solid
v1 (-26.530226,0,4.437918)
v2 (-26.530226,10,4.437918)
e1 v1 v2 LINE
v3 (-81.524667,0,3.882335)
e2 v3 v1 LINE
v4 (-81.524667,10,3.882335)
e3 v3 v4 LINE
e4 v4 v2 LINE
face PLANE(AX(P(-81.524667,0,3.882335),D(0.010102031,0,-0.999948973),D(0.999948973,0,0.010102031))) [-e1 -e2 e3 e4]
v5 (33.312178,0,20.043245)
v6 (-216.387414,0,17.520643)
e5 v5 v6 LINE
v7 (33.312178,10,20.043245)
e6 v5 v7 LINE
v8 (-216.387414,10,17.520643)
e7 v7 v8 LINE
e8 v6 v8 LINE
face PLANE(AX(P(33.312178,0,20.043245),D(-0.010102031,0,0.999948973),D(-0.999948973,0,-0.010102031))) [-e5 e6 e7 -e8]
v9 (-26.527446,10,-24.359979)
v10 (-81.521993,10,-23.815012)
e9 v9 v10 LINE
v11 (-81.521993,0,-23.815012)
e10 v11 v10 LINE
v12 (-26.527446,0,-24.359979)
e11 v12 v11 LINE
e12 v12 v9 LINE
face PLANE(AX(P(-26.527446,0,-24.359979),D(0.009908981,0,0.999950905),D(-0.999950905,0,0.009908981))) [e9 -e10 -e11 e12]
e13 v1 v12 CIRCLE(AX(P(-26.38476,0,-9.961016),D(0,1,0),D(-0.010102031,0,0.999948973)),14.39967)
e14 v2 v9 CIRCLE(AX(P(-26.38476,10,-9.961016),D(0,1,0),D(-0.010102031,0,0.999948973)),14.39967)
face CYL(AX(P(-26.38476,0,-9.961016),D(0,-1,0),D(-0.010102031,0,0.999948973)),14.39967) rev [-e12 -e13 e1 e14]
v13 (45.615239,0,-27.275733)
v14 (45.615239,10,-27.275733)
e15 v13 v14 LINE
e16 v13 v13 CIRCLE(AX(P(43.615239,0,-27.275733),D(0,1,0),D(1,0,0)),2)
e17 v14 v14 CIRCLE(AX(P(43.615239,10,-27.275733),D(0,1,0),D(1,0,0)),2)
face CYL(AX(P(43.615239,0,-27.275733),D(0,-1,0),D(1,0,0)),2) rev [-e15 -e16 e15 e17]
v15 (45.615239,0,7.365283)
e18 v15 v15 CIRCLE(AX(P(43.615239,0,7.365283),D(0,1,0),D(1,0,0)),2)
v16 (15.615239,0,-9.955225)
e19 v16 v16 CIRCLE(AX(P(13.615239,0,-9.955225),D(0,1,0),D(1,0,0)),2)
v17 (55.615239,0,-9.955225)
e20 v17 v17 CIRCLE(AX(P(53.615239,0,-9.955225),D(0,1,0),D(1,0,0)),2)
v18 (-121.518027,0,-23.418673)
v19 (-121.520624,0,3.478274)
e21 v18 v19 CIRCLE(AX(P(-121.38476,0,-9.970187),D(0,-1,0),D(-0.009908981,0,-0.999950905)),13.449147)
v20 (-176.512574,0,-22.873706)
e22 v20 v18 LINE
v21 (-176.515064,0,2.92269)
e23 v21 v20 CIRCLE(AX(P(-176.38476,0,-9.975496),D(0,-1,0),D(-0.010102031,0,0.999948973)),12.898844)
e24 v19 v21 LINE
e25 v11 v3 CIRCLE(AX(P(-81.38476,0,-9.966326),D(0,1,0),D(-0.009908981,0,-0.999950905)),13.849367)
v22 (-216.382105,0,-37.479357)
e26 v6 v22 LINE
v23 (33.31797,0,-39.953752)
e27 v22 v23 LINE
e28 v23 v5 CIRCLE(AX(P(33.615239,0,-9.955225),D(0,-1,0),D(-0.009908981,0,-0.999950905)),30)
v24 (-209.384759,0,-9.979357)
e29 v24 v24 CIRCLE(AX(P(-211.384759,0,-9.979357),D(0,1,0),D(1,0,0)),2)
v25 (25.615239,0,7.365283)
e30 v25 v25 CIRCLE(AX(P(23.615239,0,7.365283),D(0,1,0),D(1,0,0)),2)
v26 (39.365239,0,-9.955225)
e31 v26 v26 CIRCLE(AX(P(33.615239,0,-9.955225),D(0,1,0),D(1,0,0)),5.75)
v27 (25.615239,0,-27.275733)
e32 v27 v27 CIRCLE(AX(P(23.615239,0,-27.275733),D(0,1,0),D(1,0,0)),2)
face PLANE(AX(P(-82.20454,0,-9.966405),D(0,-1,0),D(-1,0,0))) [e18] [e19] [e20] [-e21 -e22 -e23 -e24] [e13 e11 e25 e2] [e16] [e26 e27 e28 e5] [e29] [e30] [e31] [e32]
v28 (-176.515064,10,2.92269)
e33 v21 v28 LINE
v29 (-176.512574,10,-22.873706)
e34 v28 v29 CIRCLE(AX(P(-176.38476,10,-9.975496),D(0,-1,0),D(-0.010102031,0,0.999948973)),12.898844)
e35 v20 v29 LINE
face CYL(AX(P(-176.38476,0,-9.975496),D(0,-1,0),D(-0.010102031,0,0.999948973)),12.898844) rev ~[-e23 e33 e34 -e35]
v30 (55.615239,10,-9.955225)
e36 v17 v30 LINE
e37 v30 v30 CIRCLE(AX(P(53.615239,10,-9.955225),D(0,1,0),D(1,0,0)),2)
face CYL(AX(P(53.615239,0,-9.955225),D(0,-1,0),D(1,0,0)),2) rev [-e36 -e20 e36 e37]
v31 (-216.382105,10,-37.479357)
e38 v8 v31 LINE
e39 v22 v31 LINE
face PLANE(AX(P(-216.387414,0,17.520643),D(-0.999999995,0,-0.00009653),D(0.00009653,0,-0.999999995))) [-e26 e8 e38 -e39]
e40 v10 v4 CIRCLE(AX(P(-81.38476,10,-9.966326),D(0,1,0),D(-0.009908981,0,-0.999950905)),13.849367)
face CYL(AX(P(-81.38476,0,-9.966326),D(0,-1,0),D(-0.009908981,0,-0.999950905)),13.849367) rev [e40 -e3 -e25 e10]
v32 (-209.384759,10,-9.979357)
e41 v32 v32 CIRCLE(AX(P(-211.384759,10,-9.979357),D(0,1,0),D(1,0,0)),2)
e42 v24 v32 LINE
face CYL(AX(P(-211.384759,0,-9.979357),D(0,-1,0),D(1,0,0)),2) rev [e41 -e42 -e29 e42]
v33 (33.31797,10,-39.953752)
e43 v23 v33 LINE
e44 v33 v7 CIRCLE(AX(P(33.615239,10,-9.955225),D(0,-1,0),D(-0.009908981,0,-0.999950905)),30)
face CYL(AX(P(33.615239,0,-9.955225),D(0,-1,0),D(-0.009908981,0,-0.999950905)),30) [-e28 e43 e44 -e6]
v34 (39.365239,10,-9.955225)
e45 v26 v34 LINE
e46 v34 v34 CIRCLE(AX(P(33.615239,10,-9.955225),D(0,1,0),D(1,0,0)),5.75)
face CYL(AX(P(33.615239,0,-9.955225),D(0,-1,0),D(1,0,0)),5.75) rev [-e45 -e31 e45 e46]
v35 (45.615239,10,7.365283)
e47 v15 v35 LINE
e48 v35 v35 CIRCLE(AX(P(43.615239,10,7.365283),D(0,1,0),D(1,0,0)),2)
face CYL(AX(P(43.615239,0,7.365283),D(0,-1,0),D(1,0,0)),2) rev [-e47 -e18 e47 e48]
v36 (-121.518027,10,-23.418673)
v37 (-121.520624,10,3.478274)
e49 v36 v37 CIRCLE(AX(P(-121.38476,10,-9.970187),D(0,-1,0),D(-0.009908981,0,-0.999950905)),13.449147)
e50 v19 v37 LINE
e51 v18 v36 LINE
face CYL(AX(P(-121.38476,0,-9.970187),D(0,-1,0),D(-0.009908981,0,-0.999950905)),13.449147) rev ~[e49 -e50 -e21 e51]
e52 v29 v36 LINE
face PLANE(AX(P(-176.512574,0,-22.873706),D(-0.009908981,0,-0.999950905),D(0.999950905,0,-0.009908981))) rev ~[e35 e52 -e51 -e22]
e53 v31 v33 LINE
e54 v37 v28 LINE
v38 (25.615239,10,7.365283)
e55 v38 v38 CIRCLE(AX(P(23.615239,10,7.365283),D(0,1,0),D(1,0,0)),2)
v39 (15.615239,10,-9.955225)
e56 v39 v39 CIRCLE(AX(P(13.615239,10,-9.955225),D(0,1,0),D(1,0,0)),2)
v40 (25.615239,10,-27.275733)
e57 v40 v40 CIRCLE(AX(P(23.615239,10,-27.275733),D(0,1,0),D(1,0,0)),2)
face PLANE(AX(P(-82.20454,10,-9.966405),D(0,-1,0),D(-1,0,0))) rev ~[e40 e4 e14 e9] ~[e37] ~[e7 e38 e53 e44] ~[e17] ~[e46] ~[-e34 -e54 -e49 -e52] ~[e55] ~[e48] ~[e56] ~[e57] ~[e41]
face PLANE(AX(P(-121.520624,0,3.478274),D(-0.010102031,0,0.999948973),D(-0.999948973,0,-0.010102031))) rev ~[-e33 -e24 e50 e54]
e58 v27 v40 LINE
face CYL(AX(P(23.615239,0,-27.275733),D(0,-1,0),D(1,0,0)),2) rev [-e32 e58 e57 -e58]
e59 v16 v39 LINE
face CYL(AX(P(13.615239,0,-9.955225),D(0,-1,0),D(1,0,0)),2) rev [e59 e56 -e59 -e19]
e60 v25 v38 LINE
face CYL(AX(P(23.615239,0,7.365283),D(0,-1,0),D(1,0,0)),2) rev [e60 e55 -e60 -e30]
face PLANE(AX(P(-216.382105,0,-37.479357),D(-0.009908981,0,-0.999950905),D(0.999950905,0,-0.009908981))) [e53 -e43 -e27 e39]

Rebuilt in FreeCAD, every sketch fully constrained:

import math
import FreeCAD as App
import Part
import Sketcher

V = App.Vector
Q = App.Units.Quantity

doc = App.newDocument("Part")
body = doc.addObject("PartDesign::Body", "Body")

sketch1 = body.newObject("Sketcher::SketchObject", "Sketch")
sketch1.AttachmentSupport = (doc.getObject("XZ_Plane"), [""])
sketch1.MapMode = "FlatFace"
sketch1.addGeometry(Part.LineSegment(V(33.31797, -39.953752, 0), V(-216.382105, -37.479357, 0)), False)
sketch1.addGeometry(Part.LineSegment(V(-216.382105, -37.479357, 0), V(-216.387414, 17.520643, 0)), False)
sketch1.addGeometry(Part.LineSegment(V(-216.387414, 17.520643, 0), V(33.312178, 20.043245, 0)), False)
sketch1.addGeometry(Part.ArcOfCircle(Part.Circle(V(33.615239, -9.955225, 0), V(0, 0, 1), 30), math.radians(-90.567752), math.radians(90.578814)), False)
sketch1.addGeometry(Part.Circle(V(43.615239, 7.365283, 0), V(0, 0, 1), 2), False)
sketch1.addGeometry(Part.Circle(V(23.615239, 7.365283, 0), V(0, 0, 1), 2), False)
sketch1.addGeometry(Part.Circle(V(53.615239, -9.955225, 0), V(0, 0, 1), 2), False)
sketch1.addGeometry(Part.Circle(V(33.615239, -9.955225, 0), V(0, 0, 1), 5.75), False)
sketch1.addGeometry(Part.Circle(V(13.615239, -9.955225, 0), V(0, 0, 1), 2), False)
sketch1.addGeometry(Part.ArcOfCircle(Part.Circle(V(-81.38476, -9.966326, 0), V(0, 0, 1), 13.849367), math.radians(90.578814), math.radians(269.432248)), False)
sketch1.addGeometry(Part.LineSegment(V(-81.521993, -23.815012, 0), V(-26.527446, -24.359979, 0)), False)
sketch1.addGeometry(Part.ArcOfCircle(Part.Circle(V(-26.38476, -9.961016, 0), V(0, 0, 1), 14.39967), math.radians(-90.567752), math.radians(90.578814)), False)
sketch1.addGeometry(Part.LineSegment(V(-26.530226, 4.437918, 0), V(-81.524667, 3.882335, 0)), False)
sketch1.addGeometry(Part.Circle(V(43.615239, -27.275733, 0), V(0, 0, 1), 2), False)
sketch1.addGeometry(Part.Circle(V(23.615239, -27.275733, 0), V(0, 0, 1), 2), False)
sketch1.addGeometry(Part.LineSegment(V(-176.512574, -22.873706, 0), V(-121.518027, -23.418673, 0)), False)
sketch1.addGeometry(Part.ArcOfCircle(Part.Circle(V(-121.38476, -9.970187, 0), V(0, 0, 1), 13.449147), math.radians(-90.567752), math.radians(90.578814)), False)
sketch1.addGeometry(Part.LineSegment(V(-121.520624, 3.478274, 0), V(-176.515064, 2.92269, 0)), False)
sketch1.addGeometry(Part.ArcOfCircle(Part.Circle(V(-176.38476, -9.975496, 0), V(0, 0, 1), 12.898844), math.radians(90.578814), math.radians(269.432248)), False)
sketch1.addGeometry(Part.Circle(V(-211.384759, -9.979357, 0), V(0, 0, 1), 2), False)
sketch1.addConstraint(Sketcher.Constraint("Coincident", 0, 2, 1, 1))
sketch1.addConstraint(Sketcher.Constraint("Coincident", 1, 2, 2, 1))
sketch1.addConstraint(Sketcher.Constraint("Tangent", 2, 2, 3, 2))
sketch1.addConstraint(Sketcher.Constraint("Tangent", 3, 1, 0, 1))
sketch1.addConstraint(Sketcher.Constraint("Tangent", 9, 2, 10, 1))
sketch1.addConstraint(Sketcher.Constraint("Tangent", 10, 2, 11, 1))
sketch1.addConstraint(Sketcher.Constraint("Tangent", 11, 2, 12, 1))
sketch1.addConstraint(Sketcher.Constraint("Tangent", 12, 2, 9, 1))
sketch1.addConstraint(Sketcher.Constraint("Tangent", 15, 2, 16, 1))
sketch1.addConstraint(Sketcher.Constraint("Tangent", 16, 2, 17, 1))
sketch1.addConstraint(Sketcher.Constraint("Tangent", 17, 2, 18, 1))
sketch1.addConstraint(Sketcher.Constraint("Tangent", 18, 2, 15, 1))
sketch1.addConstraint(Sketcher.Constraint("Coincident", 7, 3, 3, 3))
sketch1.addConstraint(Sketcher.Constraint("Equal", 4, 5))
sketch1.addConstraint(Sketcher.Constraint("Equal", 5, 6))
sketch1.addConstraint(Sketcher.Constraint("Equal", 6, 8))
sketch1.addConstraint(Sketcher.Constraint("Equal", 8, 13))
sketch1.addConstraint(Sketcher.Constraint("Equal", 13, 14))
sketch1.addConstraint(Sketcher.Constraint("Equal", 14, 19))
sketch1.addConstraint(Sketcher.Constraint("Parallel", 0, 10))
sketch1.addConstraint(Sketcher.Constraint("Parallel", 2, 12))
sketch1.addConstraint(Sketcher.Constraint("Parallel", 10, 15))
sketch1.addConstraint(Sketcher.Constraint("Parallel", 12, 17))
sketch1.addConstraint(Sketcher.Constraint("Horizontal", 4, 3, 5, 3))
sketch1.addConstraint(Sketcher.Constraint("Horizontal", 3, 3, 6, 3))
sketch1.addConstraint(Sketcher.Constraint("Horizontal", 7, 3, 8, 3))
sketch1.addConstraint(Sketcher.Constraint("Horizontal", 13, 3, 14, 3))
sketch1.addConstraint(Sketcher.Constraint("Vertical", 4, 3, 13, 3))
sketch1.addConstraint(Sketcher.Constraint("Vertical", 5, 3, 14, 3))
sketch1.addConstraint(Sketcher.Constraint("Equal", 0, 2))
sketch1.addConstraint(Sketcher.Constraint("Equal", 12, 15))
sketch1.addConstraint(Sketcher.Constraint("Diameter", 4, Q("4 mm")))
sketch1.addConstraint(Sketcher.Constraint("Radius", 3, Q("30 mm")))
sketch1.addConstraint(Sketcher.Constraint("Diameter", 7, Q("11.5 mm")))
sketch1.addConstraint(Sketcher.Constraint("Distance", 1, Q("55 mm")))
sketch1.addConstraint(Sketcher.Constraint("DistanceX", 3, 3, 4, 3, Q("10 mm")))
sketch1.addConstraint(Sketcher.Constraint("DistanceX", 5, 3, 4, 3, Q("20 mm")))
sketch1.addConstraint(Sketcher.Constraint("DistanceX", 4, 3, 6, 3, Q("10 mm")))
sketch1.addConstraint(Sketcher.Constraint("DistanceX", 8, 3, 5, 3, Q("10 mm")))
sketch1.addConstraint(Sketcher.Constraint("DistanceX", 9, 3, 8, 3, Q("94.999999 mm")))
sketch1.addConstraint(Sketcher.Constraint("DistanceX", 11, 3, 8, 3, Q("40 mm")))
sketch1.addConstraint(Sketcher.Constraint("DistanceX", 16, 3, 9, 3, Q("40 mm")))
sketch1.addConstraint(Sketcher.Constraint("DistanceX", 19, 3, 18, 3, Q("35 mm")))
sketch1.addConstraint(Sketcher.Constraint("DistanceY", 0, 2, 19, 3, Q("27.5 mm")))
sketch1.addConstraint(Sketcher.Constraint("Radius", 11, Q("14.39967 mm")))
sketch1.addConstraint(Sketcher.Constraint("Radius", 16, Q("13.449147 mm")))
sketch1.addConstraint(Sketcher.Constraint("DistanceY", 9, 3, 8, 3, Q("0.011101 mm")))
sketch1.addConstraint(Sketcher.Constraint("DistanceY", 11, 3, 5, 3, Q("17.3263 mm")))
sketch1.addConstraint(Sketcher.Constraint("DistanceY", 9, 3, 16, 2, Q("13.444599 mm")))
sketch1.addConstraint(Sketcher.Constraint("DistanceX", -1, 1, 3, 3, Q("33.615239 mm")))
sketch1.addConstraint(Sketcher.Constraint("DistanceX", -1, 1, 2, 2, Q("33.312178 mm")))
sketch1.addConstraint(Sketcher.Constraint("DistanceY", 3, 1, -1, 1, Q("39.953752 mm")))
sketch1.addConstraint(Sketcher.Constraint("DistanceY", 13, 3, 3, 3, Q("17.320508 mm")))
sketch1.addConstraint(Sketcher.Constraint("DistanceY", 19, 3, 18, 3, Q("0.003861 mm")))
pad1 = body.newObject("PartDesign::Pad", "Pad")
pad1.Profile = sketch1
pad1.Length = 10
pad1.Reversed = True

doc.recompute()
